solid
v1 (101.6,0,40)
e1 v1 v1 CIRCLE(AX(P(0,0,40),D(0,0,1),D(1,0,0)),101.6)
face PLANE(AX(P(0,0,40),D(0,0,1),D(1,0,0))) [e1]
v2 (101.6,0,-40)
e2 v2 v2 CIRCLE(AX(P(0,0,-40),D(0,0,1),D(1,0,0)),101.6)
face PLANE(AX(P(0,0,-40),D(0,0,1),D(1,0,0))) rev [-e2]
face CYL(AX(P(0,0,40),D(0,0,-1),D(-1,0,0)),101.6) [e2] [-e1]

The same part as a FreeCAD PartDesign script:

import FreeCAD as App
import Part
import Sketcher
Q = App.Units.Quantity

doc = App.newDocument("Part")
body = doc.addObject("PartDesign::Body", "Body")

# Sketch on XY plane
sketch1 = doc.addObject("Sketcher::SketchObject", "Sketch")
body.addObject(sketch1)
sketch1.AttachmentSupport = (doc.XY_Plane, [""])
sketch1.MapMode = "FlatFace"
sketch1.addGeometry(Part.Circle(App.Vector(0, 0, 0), App.Vector(0, 0, 1), 102), False)
sketch1.addConstraint(Sketcher.Constraint("Coincident", 0, 3, -1, 1))
sketch1.addConstraint(Sketcher.Constraint("Diameter", 0, Q("203.2 mm")))
pad1 = doc.addObject("PartDesign::Pad", "Pad")
body.addObject(pad1)
pad1.Profile = sketch1
pad1.Length = 80
pad1.Midplane = True

doc.recompute()
